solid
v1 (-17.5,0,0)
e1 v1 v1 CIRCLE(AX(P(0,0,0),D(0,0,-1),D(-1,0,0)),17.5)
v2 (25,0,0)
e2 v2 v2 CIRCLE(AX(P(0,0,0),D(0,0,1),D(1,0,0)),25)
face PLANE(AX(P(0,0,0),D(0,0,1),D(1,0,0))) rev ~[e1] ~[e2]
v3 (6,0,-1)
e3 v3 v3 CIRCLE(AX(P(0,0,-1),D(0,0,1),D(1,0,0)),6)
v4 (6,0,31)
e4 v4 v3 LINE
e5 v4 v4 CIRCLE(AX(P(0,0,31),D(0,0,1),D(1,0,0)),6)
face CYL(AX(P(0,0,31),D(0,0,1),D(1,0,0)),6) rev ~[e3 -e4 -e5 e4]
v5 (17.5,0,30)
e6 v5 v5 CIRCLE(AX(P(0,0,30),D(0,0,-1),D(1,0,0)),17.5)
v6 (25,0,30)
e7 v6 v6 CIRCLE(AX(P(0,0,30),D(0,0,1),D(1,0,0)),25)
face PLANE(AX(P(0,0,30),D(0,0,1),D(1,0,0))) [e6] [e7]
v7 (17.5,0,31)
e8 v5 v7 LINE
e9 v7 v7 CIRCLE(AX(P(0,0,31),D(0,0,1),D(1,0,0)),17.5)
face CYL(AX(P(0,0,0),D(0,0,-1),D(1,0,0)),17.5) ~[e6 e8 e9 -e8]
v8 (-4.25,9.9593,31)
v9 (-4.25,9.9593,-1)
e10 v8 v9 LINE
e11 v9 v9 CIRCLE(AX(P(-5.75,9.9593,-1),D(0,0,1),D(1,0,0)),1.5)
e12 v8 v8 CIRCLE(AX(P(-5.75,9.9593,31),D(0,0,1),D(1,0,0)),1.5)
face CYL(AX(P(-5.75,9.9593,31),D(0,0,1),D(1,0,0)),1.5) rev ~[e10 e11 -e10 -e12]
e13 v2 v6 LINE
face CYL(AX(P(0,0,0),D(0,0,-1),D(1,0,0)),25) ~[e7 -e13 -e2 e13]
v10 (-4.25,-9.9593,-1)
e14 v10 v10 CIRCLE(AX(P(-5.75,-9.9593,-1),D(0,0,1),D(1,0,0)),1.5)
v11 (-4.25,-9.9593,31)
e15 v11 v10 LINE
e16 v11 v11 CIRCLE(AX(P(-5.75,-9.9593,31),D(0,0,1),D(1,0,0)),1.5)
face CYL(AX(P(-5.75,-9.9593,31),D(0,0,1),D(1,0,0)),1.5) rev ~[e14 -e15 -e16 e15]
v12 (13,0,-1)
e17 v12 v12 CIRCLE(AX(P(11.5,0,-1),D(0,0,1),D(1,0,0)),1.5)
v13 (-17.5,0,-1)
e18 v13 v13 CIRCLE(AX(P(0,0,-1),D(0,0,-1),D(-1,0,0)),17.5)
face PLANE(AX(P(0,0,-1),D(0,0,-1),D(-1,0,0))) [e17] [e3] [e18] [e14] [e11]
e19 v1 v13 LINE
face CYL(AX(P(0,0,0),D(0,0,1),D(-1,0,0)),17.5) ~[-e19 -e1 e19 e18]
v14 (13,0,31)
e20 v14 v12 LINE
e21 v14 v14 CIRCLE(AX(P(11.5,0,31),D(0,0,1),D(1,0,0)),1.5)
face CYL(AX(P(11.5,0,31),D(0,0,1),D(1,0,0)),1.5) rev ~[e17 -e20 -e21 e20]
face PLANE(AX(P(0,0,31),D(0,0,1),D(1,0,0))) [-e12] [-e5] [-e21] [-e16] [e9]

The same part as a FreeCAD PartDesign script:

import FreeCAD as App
import Part
import Sketcher
from FreeCAD import Vector

doc = App.newDocument("Part")
body = doc.addObject("PartDesign::Body", "Body")

# Sketch on XY plane
sketch1 = doc.addObject("Sketcher::SketchObject", "Sketch")
body.addObject(sketch1)
sketch1.AttachmentSupport = (doc.XY_Plane, [""])
sketch1.MapMode = "FlatFace"
sketch1.addGeometry(Part.Circle(Vector(0, 0, 0), Vector(0, 0, 1), 18), False)
sketch1.addConstraint(Sketcher.Constraint("Coincident", 0, 3, -1, 1))
sketch1.addConstraint(Sketcher.Constraint("Diameter", 0, 35.0))
pad1 = doc.addObject("PartDesign::Pad", "Pad")
body.addObject(pad1)
pad1.Profile = sketch1
pad1.Length = 31

# Sketch on XY plane
sketch2 = doc.addObject("Sketcher::SketchObject", "Sketch001")
body.addObject(sketch2)
sketch2.AttachmentSupport = (doc.XY_Plane, [""])
sketch2.MapMode = "FlatFace"
sketch2.addGeometry(Part.Circle(Vector(0, 0, 0), Vector(0, 0, 1), 25), False)
sketch2.addConstraint(Sketcher.Constraint("Coincident", 0, 3, -1, 1))
sketch2.addConstraint(Sketcher.Constraint("Diameter", 0, 50.0))
pad2 = doc.addObject("PartDesign::Pad", "Pad001")
body.addObject(pad2)
pad2.Profile = sketch2
pad2.Length = 30

# Sketch on XY plane
sketch3 = doc.addObject("Sketcher::SketchObject", "Sketch002")
body.addObject(sketch3)
sketch3.AttachmentSupport = (doc.XY_Plane, [""])
sketch3.MapMode = "FlatFace"
sketch3.addGeometry(Part.Circle(Vector(0, 0, 0), Vector(0, 0, 1), 18), False)
sketch3.addConstraint(Sketcher.Constraint("Coincident", 0, 3, -1, 1))
sketch3.addConstraint(Sketcher.Constraint("Diameter", 0, 35.0))
pad3 = doc.addObject("PartDesign::Pad", "Pad002")
body.addObject(pad3)
pad3.Profile = sketch3
pad3.Length = 1
pad3.Reversed = True

# Sketch on XY plane
sketch4 = doc.addObject("Sketcher::SketchObject", "Sketch003")
body.addObject(sketch4)
sketch4.AttachmentSupport = (doc.XY_Plane, [""])
sketch4.MapMode = "FlatFace"
sketch4.AttachmentOffset = App.Placement(Vector(0, 0, 31), App.Rotation())
sketch4.addGeometry(Part.Circle(Vector(-5.8, -10, 0), Vector(0, 0, 1), 1.5), False)
sketch4.addGeometry(Part.Circle(Vector(-5.8, 10, 0), Vector(0, 0, 1), 1.5), False)
sketch4.addGeometry(Part.Circle(Vector(11.5, 0, 0), Vector(0, 0, 1), 1.5), False)
sketch4.addGeometry(Part.Circle(Vector(0, 0, 0), Vector(0, 0, 1), 6), False)
sketch4.addConstraint(Sketcher.Constraint("Coincident", 3, 3, -1, 1))
sketch4.addConstraint(Sketcher.Constraint("Equal", 0, 1))
sketch4.addConstraint(Sketcher.Constraint("Equal", 1, 2))
sketch4.addConstraint(Sketcher.Constraint("Symmetric", 0, 3, 1, 3, -1))
sketch4.addConstraint(Sketcher.Constraint("PointOnObject", 2, 3, -1))
sketch4.addConstraint(Sketcher.Constraint("Diameter", 0, 3.0))
sketch4.addConstraint(Sketcher.Constraint("Diameter", 3, 12.0))
sketch4.addConstraint(Sketcher.Constraint("DistanceX", -1, 1, 2, 3, 11.5))
sketch4.addConstraint(Sketcher.Constraint("DistanceX", 0, 3, -1, 1, 5.75))
sketch4.addConstraint(Sketcher.Constraint("DistanceY", 0, 3, -1, 1, 9.9593))
pocket1 = doc.addObject("PartDesign::Pocket", "Pocket")
body.addObject(pocket1)
pocket1.Profile = sketch4
pocket1.Type = "ThroughAll"

doc.recompute()
